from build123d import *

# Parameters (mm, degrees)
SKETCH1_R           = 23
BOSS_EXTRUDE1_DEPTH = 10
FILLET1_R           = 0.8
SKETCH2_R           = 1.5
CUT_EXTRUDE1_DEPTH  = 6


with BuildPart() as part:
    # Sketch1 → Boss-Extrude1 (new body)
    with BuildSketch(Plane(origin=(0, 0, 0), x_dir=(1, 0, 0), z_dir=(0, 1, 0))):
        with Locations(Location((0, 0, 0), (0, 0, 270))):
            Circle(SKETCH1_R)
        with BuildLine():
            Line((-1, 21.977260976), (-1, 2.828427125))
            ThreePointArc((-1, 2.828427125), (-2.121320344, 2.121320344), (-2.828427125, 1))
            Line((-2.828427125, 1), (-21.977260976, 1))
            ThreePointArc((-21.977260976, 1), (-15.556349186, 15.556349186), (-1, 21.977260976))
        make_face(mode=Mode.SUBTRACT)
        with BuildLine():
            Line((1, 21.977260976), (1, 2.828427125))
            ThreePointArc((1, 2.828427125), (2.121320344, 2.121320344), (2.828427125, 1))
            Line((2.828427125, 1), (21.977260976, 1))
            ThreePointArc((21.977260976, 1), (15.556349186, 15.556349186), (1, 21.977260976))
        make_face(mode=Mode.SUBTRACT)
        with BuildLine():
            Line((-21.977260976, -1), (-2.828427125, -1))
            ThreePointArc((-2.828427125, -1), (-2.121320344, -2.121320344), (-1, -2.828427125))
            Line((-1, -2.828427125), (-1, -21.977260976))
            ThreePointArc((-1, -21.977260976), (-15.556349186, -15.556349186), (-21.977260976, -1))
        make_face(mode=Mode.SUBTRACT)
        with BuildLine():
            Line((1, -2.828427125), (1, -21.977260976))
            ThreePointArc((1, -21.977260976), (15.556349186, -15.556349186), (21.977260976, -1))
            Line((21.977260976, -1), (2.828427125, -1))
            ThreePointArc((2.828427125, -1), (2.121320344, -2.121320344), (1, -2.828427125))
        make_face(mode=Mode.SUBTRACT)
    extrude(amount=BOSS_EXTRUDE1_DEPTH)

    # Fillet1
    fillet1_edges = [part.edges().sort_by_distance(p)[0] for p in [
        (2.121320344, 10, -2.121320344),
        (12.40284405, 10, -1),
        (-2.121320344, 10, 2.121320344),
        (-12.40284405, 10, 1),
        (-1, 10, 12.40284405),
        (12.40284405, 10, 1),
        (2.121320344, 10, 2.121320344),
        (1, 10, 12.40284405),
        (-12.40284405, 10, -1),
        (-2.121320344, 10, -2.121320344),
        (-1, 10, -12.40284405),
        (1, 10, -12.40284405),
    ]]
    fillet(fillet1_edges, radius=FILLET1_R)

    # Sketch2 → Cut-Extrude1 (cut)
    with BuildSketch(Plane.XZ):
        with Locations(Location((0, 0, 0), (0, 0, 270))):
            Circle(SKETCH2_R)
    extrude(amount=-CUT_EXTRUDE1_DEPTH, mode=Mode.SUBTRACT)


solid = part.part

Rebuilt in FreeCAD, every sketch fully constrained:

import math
import FreeCAD as App
import Part
import Sketcher

V = App.Vector
Q = App.Units.Quantity


def edges_at(feature, points):
    """Names of the edges that pass closest to the given points."""
    edges = feature.Shape.Edges
    near = lambda p: min(range(len(edges)), key=lambda i: edges[i].distToShape(Part.Vertex(*p))[0])
    return sorted({f"Edge{near(p) + 1}" for p in points})

doc = App.newDocument("Part")
body = doc.addObject("PartDesign::Body", "Body")

# Sketch on XZ plane
sketch1 = body.newObject("Sketcher::SketchObject", "Sketch")
sketch1.AttachmentSupport = (doc.getObject("XZ_Plane"), [""])
sketch1.MapMode = "FlatFace"
sketch1.addGeometry([
    Part.Circle(V(0, 0, 0), V(0, 0, 1), 23),  # 0
    Part.ArcOfCircle(Part.Circle(V(0, 0, 0), V(0, 0, 1), 22), math.radians(-177), math.radians(-93)),  # 1
    Part.LineSegment(V(-1, -22, 0), V(-1, -2.8, 0)),  # 2
    Part.ArcOfCircle(Part.Circle(V(0, 0, 0), V(0, 0, 1), 3), math.radians(-161), math.radians(-109)),  # 3
    Part.LineSegment(V(-2.8, -1, 0), V(-22, -1, 0)),  # 4
    Part.ArcOfCircle(Part.Circle(V(0, 0, 0), V(0, 0, 1), 22), math.radians(93), math.radians(177)),  # 5
    Part.LineSegment(V(-22, 1, 0), V(-2.8, 1, 0)),  # 6
    Part.ArcOfCircle(Part.Circle(V(0, 0, 0), V(0, 0, 1), 3), math.radians(109), math.radians(161)),  # 7
    Part.LineSegment(V(-1, 2.8, 0), V(-1, 22, 0)),  # 8
    Part.LineSegment(V(1, -2.8, 0), V(1, -22, 0)),  # 9
    Part.ArcOfCircle(Part.Circle(V(0, 0, 0), V(0, 0, 1), 22), math.radians(-87), math.radians(-3)),  # 10
    Part.LineSegment(V(22, -1, 0), V(2.8, -1, 0)),  # 11
    Part.ArcOfCircle(Part.Circle(V(0, 0, 0), V(0, 0, 1), 3), math.radians(-71), math.radians(-19)),  # 12
    Part.LineSegment(V(1, 22, 0), V(1, 2.8, 0)),  # 13
    Part.ArcOfCircle(Part.Circle(V(0, 0, 0), V(0, 0, 1), 3), math.radians(19), math.radians(71)),  # 14
    Part.LineSegment(V(2.8, 1, 0), V(22, 1, 0)),  # 15
    Part.ArcOfCircle(Part.Circle(V(0, 0, 0), V(0, 0, 1), 22), math.radians(3), math.radians(87)),  # 16
], False)
sketch1.addConstraint([
    Sketcher.Constraint("Coincident", 1, 2, 2, 1),
    Sketcher.Constraint("Coincident", 2, 2, 3, 2),
    Sketcher.Constraint("Coincident", 3, 1, 4, 1),
    Sketcher.Constraint("Coincident", 4, 2, 1, 1),
    Sketcher.Constraint("Coincident", 5, 2, 6, 1),
    Sketcher.Constraint("Coincident", 6, 2, 7, 2),
    Sketcher.Constraint("Coincident", 7, 1, 8, 1),
    Sketcher.Constraint("Coincident", 8, 2, 5, 1),
    Sketcher.Constraint("Coincident", 9, 2, 10, 1),
    Sketcher.Constraint("Coincident", 10, 2, 11, 1),
    Sketcher.Constraint("Coincident", 11, 2, 12, 2),
    Sketcher.Constraint("Coincident", 12, 1, 9, 1),
    Sketcher.Constraint("Coincident", 13, 2, 14, 2),
    Sketcher.Constraint("Coincident", 14, 1, 15, 1),
    Sketcher.Constraint("Coincident", 15, 2, 16, 1),
    Sketcher.Constraint("Coincident", 16, 2, 13, 1),
    Sketcher.Constraint("Vertical", 2),
    Sketcher.Constraint("Horizontal", 4),
    Sketcher.Constraint("Horizontal", 6),
    Sketcher.Constraint("Vertical", 8),
    Sketcher.Constraint("Vertical", 9),
    Sketcher.Constraint("Horizontal", 11),
    Sketcher.Constraint("Vertical", 13),
    Sketcher.Constraint("Horizontal", 15),
    Sketcher.Constraint("Coincident", 0, 3, -1, 1),
    Sketcher.Constraint("Coincident", 1, 3, -1, 1),
    Sketcher.Constraint("Coincident", 3, 3, -1, 1),
    Sketcher.Constraint("Coincident", 5, 3, -1, 1),
    Sketcher.Constraint("Coincident", 7, 3, -1, 1),
    Sketcher.Constraint("Coincident", 10, 3, -1, 1),
    Sketcher.Constraint("Coincident", 12, 3, -1, 1),
    Sketcher.Constraint("Coincident", 14, 3, -1, 1),
    Sketcher.Constraint("Coincident", 16, 3, -1, 1),
    Sketcher.Constraint("Equal", 1, 5),
    Sketcher.Constraint("Equal", 3, 7),
    Sketcher.Constraint("Equal", 5, 10),
    Sketcher.Constraint("Equal", 7, 12),
    Sketcher.Constraint("Equal", 12, 14),
    Sketcher.Constraint("Equal", 10, 16),
    Sketcher.Constraint("Horizontal", 1, 2, 9, 2),
    Sketcher.Constraint("Horizontal", 4, 2, 10, 2),
    Sketcher.Constraint("Horizontal", 7, 1, 13, 2),
    Sketcher.Constraint("Horizontal", 6, 2, 14, 1),
    Sketcher.Constraint("Vertical", 4, 2, 5, 2),
    Sketcher.Constraint("Vertical", 2, 2, 7, 1),
    Sketcher.Constraint("Equal", 15, 2),
    Sketcher.Constraint("Diameter", 0, Q("46 mm")),
    Sketcher.Constraint("Radius", 1, Q("22 mm")),
    Sketcher.Constraint("Radius", 3, Q("3 mm")),
    Sketcher.Constraint("DistanceX", 1, 2, -1, 1, Q("1 mm")),
])
pad1 = body.newObject("PartDesign::Pad", "Pad")
pad1.Profile = sketch1
pad1.Length = 10
pad1.Reversed = True
doc.recompute()

fillet = body.newObject("PartDesign::Fillet", "Fillet")
fillet.Base = (pad1, edges_at(pad1, [
    (2.121, 10, -2.121),
    (12.403, 10, -1),
    (-2.121, 10, 2.121),
    (-12.403, 10, 1),
    (-1, 10, 12.403),
    (12.403, 10, 1),
    (2.121, 10, 2.121),
    (1, 10, 12.403),
    (-12.403, 10, -1),
    (-2.121, 10, -2.121),
    (-1, 10, -12.403),
    (1, 10, -12.403),
]))
fillet.Radius = 0.8

# Sketch on XZ plane
sketch2 = body.newObject("Sketcher::SketchObject", "Sketch001")
sketch2.AttachmentSupport = (doc.getObject("XZ_Plane"), [""])
sketch2.MapMode = "FlatFace"
sketch2.addGeometry(Part.Circle(V(0, 0, 0), V(0, 0, 1), 1.5), False)
sketch2.addConstraint([
    Sketcher.Constraint("Coincident", 0, 3, -1, 1),
    Sketcher.Constraint("Diameter", 0, Q("3 mm")),
])
pocket1 = body.newObject("PartDesign::Pocket", "Pocket")
pocket1.Profile = sketch2
pocket1.Length = 6

doc.recompute()
